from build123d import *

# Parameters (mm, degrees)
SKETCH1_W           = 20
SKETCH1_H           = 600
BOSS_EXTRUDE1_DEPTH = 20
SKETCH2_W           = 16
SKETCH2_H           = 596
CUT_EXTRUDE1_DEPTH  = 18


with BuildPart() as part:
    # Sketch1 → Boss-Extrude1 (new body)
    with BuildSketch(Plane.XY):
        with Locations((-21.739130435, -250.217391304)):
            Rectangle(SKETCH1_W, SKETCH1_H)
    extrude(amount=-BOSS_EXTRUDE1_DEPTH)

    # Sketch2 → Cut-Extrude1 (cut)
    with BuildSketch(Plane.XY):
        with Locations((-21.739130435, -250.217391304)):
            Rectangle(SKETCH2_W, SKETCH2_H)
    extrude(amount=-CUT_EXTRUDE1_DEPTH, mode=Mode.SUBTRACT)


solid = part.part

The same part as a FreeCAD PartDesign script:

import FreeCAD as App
import Part
import Sketcher


def add_polygon(sketch, points):
    """Adds a closed chain of lines whose ends are joined by coincident constraints."""
    first, n = sketch.GeometryCount, len(points)
    for a, b in zip(points, points[1:] + points[:1]):
        sketch.addGeometry(Part.LineSegment(App.Vector(*a, 0), App.Vector(*b, 0)), False)
    for i in range(n):
        sketch.addConstraint(Sketcher.Constraint("Coincident", first + i, 2, first + (i + 1) % n, 1))

doc = App.newDocument("Part")
body = doc.addObject("PartDesign::Body", "Body")

# Sketch on XY plane
sketch1 = body.newObject("Sketcher::SketchObject", "Sketch")
sketch1.AttachmentSupport = (doc.getObject("XY_Plane"), [""])
sketch1.MapMode = "FlatFace"
add_polygon(sketch1, [(-32, 50), (-32, -550), (-12, -550), (-12, 50)])  # lines 0-3
sketch1.addConstraint([
    Sketcher.Constraint("Vertical", 0),
    Sketcher.Constraint("Horizontal", 1),
    Sketcher.Constraint("Vertical", 2),
    Sketcher.Constraint("Horizontal", 3),
    Sketcher.Constraint("DistanceX", 1, 1, 1, 2, 20.0),
    Sketcher.Constraint("DistanceY", 0, 2, 0, 1, 600.0),
    Sketcher.Constraint("DistanceX", 0, 2, -1, 1, 31.73913),
    Sketcher.Constraint("DistanceY", 0, 2, -1, 1, 550.217391),
])
pad1 = body.newObject("PartDesign::Pad", "Pad")
pad1.Profile = sketch1
pad1.Length = 20
pad1.Reversed = True

# Sketch on XY plane
sketch2 = body.newObject("Sketcher::SketchObject", "Sketch001")
sketch2.AttachmentSupport = (doc.getObject("XY_Plane"), [""])
sketch2.MapMode = "FlatFace"
add_polygon(sketch2, [(-30, 48), (-30, -548), (-14, -548), (-14, 48)])  # lines 0-3
sketch2.addConstraint([
    Sketcher.Constraint("Vertical", 0),
    Sketcher.Constraint("Horizontal", 1),
    Sketcher.Constraint("Vertical", 2),
    Sketcher.Constraint("Horizontal", 3),
    Sketcher.Constraint("DistanceX", 1, 1, 1, 2, 16.0),
    Sketcher.Constraint("DistanceY", 0, 2, 0, 1, 596.0),
    Sketcher.Constraint("DistanceX", 0, 2, -1, 1, 29.73913),
    Sketcher.Constraint("DistanceY", 0, 2, -1, 1, 548.217391),
])
pocket1 = body.newObject("PartDesign::Pocket", "Pocket")
pocket1.Profile = sketch2
pocket1.Length = 18

doc.recompute()
